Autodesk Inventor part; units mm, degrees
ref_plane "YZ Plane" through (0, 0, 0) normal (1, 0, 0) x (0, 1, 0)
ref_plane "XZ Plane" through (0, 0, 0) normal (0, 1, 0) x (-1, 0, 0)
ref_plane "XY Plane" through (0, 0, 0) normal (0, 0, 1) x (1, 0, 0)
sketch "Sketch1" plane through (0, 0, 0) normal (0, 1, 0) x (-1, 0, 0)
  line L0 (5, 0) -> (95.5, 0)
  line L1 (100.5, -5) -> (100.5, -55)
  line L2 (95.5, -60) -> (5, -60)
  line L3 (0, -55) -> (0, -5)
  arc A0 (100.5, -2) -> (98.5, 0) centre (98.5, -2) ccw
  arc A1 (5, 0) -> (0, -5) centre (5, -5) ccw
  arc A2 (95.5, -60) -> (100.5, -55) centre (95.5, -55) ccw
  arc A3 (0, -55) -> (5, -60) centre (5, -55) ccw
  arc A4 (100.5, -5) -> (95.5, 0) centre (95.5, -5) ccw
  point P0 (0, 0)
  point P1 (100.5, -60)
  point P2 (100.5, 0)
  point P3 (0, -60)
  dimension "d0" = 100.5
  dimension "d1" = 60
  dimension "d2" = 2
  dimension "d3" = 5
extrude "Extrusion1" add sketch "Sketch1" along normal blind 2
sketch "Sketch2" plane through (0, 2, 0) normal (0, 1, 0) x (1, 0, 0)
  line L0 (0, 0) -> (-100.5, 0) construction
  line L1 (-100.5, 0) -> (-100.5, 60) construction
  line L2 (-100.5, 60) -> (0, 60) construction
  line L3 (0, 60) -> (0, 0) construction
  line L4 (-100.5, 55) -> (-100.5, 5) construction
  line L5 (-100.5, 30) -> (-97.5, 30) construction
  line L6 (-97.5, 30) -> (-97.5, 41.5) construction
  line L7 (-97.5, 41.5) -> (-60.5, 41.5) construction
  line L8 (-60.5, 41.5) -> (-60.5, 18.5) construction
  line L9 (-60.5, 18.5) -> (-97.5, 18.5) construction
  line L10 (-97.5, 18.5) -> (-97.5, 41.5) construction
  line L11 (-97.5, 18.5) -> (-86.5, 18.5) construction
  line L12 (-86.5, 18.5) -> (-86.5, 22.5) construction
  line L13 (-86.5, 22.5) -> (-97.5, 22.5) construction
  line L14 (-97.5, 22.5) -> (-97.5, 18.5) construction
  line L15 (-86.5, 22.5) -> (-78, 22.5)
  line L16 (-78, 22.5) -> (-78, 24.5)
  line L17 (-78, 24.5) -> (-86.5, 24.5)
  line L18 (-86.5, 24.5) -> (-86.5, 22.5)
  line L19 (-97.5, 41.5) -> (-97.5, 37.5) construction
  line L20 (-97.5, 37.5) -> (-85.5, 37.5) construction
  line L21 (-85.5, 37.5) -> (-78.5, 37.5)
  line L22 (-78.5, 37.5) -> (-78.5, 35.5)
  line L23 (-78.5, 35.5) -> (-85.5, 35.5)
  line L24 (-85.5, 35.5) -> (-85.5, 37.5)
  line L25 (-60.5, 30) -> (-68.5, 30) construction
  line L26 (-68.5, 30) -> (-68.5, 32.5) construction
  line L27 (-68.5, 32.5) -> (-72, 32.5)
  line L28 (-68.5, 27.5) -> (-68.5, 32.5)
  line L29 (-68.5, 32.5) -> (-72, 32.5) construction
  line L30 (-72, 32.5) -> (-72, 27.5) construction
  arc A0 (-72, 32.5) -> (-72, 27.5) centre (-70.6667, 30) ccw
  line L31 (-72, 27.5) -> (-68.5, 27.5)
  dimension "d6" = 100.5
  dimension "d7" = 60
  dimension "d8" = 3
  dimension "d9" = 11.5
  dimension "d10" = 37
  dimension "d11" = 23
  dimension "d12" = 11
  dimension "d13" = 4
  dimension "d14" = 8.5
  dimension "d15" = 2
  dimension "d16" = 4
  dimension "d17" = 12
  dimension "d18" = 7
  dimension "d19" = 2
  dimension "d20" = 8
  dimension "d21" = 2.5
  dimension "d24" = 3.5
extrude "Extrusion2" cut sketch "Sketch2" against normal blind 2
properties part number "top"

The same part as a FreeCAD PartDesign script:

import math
import FreeCAD as App
import Part
import Sketcher

V = App.Vector

doc = App.newDocument("Part")
body = doc.addObject("PartDesign::Body", "Body")

# Sketch on XZ plane
sketch1 = doc.addObject("Sketcher::SketchObject", "Sketch")
body.addObject(sketch1)
sketch1.AttachmentSupport = (doc.XZ_Plane, [""])
sketch1.MapMode = "FlatFace"
sketch1.addGeometry([
    Part.LineSegment(V(-96, 0, 0), V(-5, 0, 0)),  # 0
    Part.ArcOfCircle(Part.Circle(V(-5, -5, 0), V(0, 0, 1), 5), math.radians(0), math.radians(90)),  # 1
    Part.LineSegment(V(0, -5, 0), V(0, -55, 0)),  # 2
    Part.ArcOfCircle(Part.Circle(V(-5, -55, 0), V(0, 0, 1), 5), math.radians(-90), math.radians(0)),  # 3
    Part.LineSegment(V(-5, -60, 0), V(-96, -60, 0)),  # 4
    Part.ArcOfCircle(Part.Circle(V(-96, -55, 0), V(0, 0, 1), 5), math.radians(180), math.radians(270)),  # 5
    Part.LineSegment(V(-100, -55, 0), V(-100, -5, 0)),  # 6
    Part.ArcOfCircle(Part.Circle(V(-96, -5, 0), V(0, 0, 1), 5), math.radians(90), math.radians(180)),  # 7
], False)
sketch1.addConstraint([
    Sketcher.Constraint("Tangent", 0, 2, 1, 2),
    Sketcher.Constraint("Tangent", 1, 1, 2, 1),
    Sketcher.Constraint("Tangent", 2, 2, 3, 2),
    Sketcher.Constraint("Tangent", 3, 1, 4, 1),
    Sketcher.Constraint("Tangent", 4, 2, 5, 2),
    Sketcher.Constraint("Tangent", 5, 1, 6, 1),
    Sketcher.Constraint("Tangent", 6, 2, 7, 2),
    Sketcher.Constraint("Tangent", 7, 1, 0, 1),
    Sketcher.Constraint("Horizontal", 0),
    Sketcher.Constraint("Vertical", 2),
    Sketcher.Constraint("Horizontal", 4),
    Sketcher.Constraint("Vertical", 6),
    Sketcher.Constraint("Equal", 1, 3),
    Sketcher.Constraint("Equal", 3, 5),
    Sketcher.Constraint("Equal", 5, 7),
    Sketcher.Constraint("PointOnObject", 0, 2, -1),
    Sketcher.Constraint("PointOnObject", 1, 1, -2),
    Sketcher.Constraint("Radius", 1, 5.0),
    Sketcher.Constraint("DistanceY", 3, 1, -1, 1, 60.0),
    Sketcher.Constraint("DistanceX", 5, 1, -1, 1, 100.5),
])
pad1 = doc.addObject("PartDesign::Pad", "Pad")
body.addObject(pad1)
pad1.Profile = sketch1
pad1.Length = 2
pad1.Reversed = True

# Sketch on XZ plane
sketch2 = doc.addObject("Sketcher::SketchObject", "Sketch001")
body.addObject(sketch2)
sketch2.AttachmentSupport = (doc.XZ_Plane, [""])
sketch2.MapMode = "FlatFace"
sketch2.AttachmentOffset = App.Placement(V(0, 0, -2), App.Rotation())
sketch2.addGeometry([
    Part.LineSegment(V(-86.5, -24.5, 0), V(-86.5, -22.5, 0)),  # 0
    Part.LineSegment(V(-86.5, -22.5, 0), V(-78, -22.5, 0)),  # 1
    Part.LineSegment(V(-78, -22.5, 0), V(-78, -24.5, 0)),  # 2
    Part.LineSegment(V(-78, -24.5, 0), V(-86.5, -24.5, 0)),  # 3
    Part.LineSegment(V(-78.5, -37.5, 0), V(-85.5, -37.5, 0)),  # 4
    Part.LineSegment(V(-85.5, -37.5, 0), V(-85.5, -35.5, 0)),  # 5
    Part.LineSegment(V(-85.5, -35.5, 0), V(-78.5, -35.5, 0)),  # 6
    Part.LineSegment(V(-78.5, -35.5, 0), V(-78.5, -37.5, 0)),  # 7
    Part.LineSegment(V(-68.5, -27.5, 0), V(-68.5, -32.5, 0)),  # 8
    Part.LineSegment(V(-68.5, -32.5, 0), V(-72, -32.5, 0)),  # 9
    Part.ArcOfCircle(Part.Circle(V(-70.7, -30, 0), V(0, 0, 1), 2.8), math.radians(118), math.radians(242)),  # 10
    Part.LineSegment(V(-72, -27.5, 0), V(-68.5, -27.5, 0)),  # 11
], False)
sketch2.addConstraint([
    Sketcher.Constraint("Coincident", 0, 2, 1, 1),
    Sketcher.Constraint("Coincident", 1, 2, 2, 1),
    Sketcher.Constraint("Coincident", 2, 2, 3, 1),
    Sketcher.Constraint("Coincident", 3, 2, 0, 1),
    Sketcher.Constraint("Coincident", 4, 2, 5, 1),
    Sketcher.Constraint("Coincident", 5, 2, 6, 1),
    Sketcher.Constraint("Coincident", 6, 2, 7, 1),
    Sketcher.Constraint("Coincident", 7, 2, 4, 1),
    Sketcher.Constraint("Coincident", 8, 2, 9, 1),
    Sketcher.Constraint("Coincident", 9, 2, 10, 2),
    Sketcher.Constraint("Coincident", 10, 1, 11, 1),
    Sketcher.Constraint("Coincident", 11, 2, 8, 1),
    Sketcher.Constraint("Vertical", 0),
    Sketcher.Constraint("Horizontal", 1),
    Sketcher.Constraint("Vertical", 2),
    Sketcher.Constraint("Horizontal", 3),
    Sketcher.Constraint("Horizontal", 4),
    Sketcher.Constraint("Vertical", 5),
    Sketcher.Constraint("Horizontal", 6),
    Sketcher.Constraint("Vertical", 7),
    Sketcher.Constraint("Vertical", 8),
    Sketcher.Constraint("Horizontal", 9),
    Sketcher.Constraint("Horizontal", 11),
    Sketcher.Constraint("Vertical", 9, 2, 10, 1),
    Sketcher.Constraint("Equal", 2, 5),
    Sketcher.Constraint("DistanceX", 4, 2, 4, 1, 7.0),
    Sketcher.Constraint("DistanceY", 0, 1, 0, 2, 2.0),
    Sketcher.Constraint("DistanceX", 1, 1, 1, 2, 8.5),
    Sketcher.Constraint("DistanceX", 9, 2, 9, 1, 3.5),
    Sketcher.Constraint("DistanceY", 5, 2, 3, 2, 11.0),
    Sketcher.Constraint("DistanceY", 6, 2, 8, 2, 3.0),
    Sketcher.Constraint("DistanceY", 10, 1, 2, 2, 3.0),
    Sketcher.Constraint("DistanceY", 10, 3, -1, 1, 30.0),
    Sketcher.Constraint("DistanceX", 1, 2, -1, 1, 78.0),
    Sketcher.Constraint("DistanceX", 9, 2, -1, 1, 72.0),
    Sketcher.Constraint("DistanceX", 3, 2, 4, 2, 1.0),
    Sketcher.Constraint("Radius", 10, 2.8333),
])
pocket1 = doc.addObject("PartDesign::Pocket", "Pocket")
body.addObject(pocket1)
pocket1.Profile = sketch2
pocket1.Length = 2
pocket1.Reversed = True

doc.recompute()
